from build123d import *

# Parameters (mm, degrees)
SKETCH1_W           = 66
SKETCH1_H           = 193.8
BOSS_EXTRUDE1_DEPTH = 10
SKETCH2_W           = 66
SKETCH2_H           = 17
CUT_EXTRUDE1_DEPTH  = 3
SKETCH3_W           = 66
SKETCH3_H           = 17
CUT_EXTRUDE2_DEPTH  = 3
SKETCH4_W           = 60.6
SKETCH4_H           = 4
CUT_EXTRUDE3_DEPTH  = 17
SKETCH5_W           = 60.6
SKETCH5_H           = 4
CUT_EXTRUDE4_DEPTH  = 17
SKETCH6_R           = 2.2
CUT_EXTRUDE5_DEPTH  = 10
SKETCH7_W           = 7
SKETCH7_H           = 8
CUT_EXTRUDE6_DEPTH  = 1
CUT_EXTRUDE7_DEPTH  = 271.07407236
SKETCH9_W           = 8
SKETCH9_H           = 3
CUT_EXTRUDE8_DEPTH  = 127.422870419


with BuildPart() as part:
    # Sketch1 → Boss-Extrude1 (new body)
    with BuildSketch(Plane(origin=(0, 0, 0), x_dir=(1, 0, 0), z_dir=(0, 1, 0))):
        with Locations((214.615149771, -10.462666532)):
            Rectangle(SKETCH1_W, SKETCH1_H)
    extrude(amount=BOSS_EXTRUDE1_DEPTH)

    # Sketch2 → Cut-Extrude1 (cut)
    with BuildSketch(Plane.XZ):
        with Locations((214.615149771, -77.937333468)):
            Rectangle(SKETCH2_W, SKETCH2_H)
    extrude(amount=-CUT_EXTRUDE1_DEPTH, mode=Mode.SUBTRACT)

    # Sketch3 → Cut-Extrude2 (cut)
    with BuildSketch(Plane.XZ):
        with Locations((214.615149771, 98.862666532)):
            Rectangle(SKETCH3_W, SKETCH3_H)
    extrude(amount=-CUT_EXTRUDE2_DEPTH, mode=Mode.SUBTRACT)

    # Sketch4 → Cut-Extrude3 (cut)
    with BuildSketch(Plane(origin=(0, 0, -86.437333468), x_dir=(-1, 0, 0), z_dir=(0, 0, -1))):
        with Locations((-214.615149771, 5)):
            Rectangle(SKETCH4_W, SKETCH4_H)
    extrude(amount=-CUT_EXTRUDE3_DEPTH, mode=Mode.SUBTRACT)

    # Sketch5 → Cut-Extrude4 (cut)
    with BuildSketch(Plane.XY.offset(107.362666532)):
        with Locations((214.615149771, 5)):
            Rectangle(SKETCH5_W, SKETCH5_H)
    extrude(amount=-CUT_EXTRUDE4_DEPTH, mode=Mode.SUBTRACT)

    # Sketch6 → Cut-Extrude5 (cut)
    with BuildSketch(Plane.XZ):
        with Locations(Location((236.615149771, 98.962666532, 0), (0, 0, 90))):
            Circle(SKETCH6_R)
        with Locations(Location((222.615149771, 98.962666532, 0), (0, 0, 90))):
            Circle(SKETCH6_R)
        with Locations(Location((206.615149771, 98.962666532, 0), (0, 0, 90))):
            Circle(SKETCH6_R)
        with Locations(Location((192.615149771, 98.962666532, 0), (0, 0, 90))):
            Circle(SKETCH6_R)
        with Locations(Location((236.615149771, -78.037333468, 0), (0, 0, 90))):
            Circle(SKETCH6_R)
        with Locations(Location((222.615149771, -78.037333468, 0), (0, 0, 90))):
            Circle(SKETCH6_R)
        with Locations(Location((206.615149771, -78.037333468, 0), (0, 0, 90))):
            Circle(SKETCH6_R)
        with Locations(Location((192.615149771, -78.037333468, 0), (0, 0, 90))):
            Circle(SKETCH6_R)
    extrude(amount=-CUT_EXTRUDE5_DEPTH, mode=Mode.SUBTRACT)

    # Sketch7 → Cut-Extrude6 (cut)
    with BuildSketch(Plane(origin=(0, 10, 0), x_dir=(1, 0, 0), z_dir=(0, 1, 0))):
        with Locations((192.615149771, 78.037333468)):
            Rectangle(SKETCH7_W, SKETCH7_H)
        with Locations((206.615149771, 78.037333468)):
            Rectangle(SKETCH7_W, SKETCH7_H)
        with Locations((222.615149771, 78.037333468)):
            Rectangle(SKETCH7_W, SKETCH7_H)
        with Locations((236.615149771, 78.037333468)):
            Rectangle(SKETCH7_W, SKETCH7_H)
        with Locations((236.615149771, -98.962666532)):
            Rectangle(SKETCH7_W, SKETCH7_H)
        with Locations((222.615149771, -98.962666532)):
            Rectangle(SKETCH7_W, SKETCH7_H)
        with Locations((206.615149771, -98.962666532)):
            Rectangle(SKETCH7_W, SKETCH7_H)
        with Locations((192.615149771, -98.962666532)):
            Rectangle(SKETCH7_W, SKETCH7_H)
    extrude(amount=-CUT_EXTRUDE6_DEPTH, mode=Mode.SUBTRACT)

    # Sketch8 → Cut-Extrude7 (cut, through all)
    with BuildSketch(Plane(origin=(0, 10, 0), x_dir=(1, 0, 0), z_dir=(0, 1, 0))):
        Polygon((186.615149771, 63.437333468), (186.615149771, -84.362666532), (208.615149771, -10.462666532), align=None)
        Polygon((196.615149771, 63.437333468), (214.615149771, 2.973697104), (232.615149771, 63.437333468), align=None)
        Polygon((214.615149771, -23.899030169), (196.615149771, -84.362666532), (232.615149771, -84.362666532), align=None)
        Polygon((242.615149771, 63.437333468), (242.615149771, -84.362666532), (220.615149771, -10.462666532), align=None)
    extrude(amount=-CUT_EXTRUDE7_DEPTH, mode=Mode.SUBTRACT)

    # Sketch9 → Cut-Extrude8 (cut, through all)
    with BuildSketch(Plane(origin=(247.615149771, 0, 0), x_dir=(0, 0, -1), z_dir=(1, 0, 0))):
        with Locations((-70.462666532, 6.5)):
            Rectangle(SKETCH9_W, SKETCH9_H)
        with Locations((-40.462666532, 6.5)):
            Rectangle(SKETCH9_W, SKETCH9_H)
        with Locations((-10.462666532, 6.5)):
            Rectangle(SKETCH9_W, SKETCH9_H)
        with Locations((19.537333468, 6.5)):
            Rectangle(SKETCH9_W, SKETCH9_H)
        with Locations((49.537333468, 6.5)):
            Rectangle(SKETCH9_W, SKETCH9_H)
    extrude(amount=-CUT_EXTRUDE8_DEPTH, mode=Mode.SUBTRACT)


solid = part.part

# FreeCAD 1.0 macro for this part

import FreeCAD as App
import Part
import Sketcher

V = App.Vector
Q = App.Units.Quantity

doc = App.newDocument("Part")
params = doc.addObject("Spreadsheet::Sheet", "Params")
for row, (alias, value) in enumerate([
    ("sketch1_width", "66 mm"),
    ("sketch1_height", "193.8 mm"),
    ("pad1_length", "10 mm"),
    ("sketch2_width", "66 mm"),
    ("sketch2_height", "17 mm"),
    ("pocket1_length", "3 mm"),
    ("sketch3_width", "66 mm"),
    ("sketch3_height", "17 mm"),
    ("pocket2_length", "3 mm"),
    ("sketch4_height", "4 mm"),
    ("sketch4_width", "60.6 mm"),
    ("pocket3_length", "17 mm"),
    ("sketch5_height", "4 mm"),
    ("sketch5_width", "60.6 mm"),
    ("pocket4_length", "17 mm"),
    ("sketch6_diameter", "4.4 mm"),
    ("pocket5_length", "10 mm"),
    ("sketch7_width", "7 mm"),
    ("sketch7_height", "8 mm"),
    ("pocket6_length", "1 mm"),
    ("sketch8_width", "36 mm"),
    ("sketch8_height", "147.8 mm"),
    ("sketch9_width", "3 mm"),
    ("sketch9_height", "8 mm"),
], start=1):
    params.set(f"A{row}", alias)
    params.set(f"B{row}", "=" + value)
    params.setAlias(f"B{row}", alias)

body = doc.addObject("PartDesign::Body", "Body")

# Sketch on XZ plane
sketch1 = body.newObject("Sketcher::SketchObject", "Sketch")
sketch1.AttachmentSupport = (doc.getObject("XZ_Plane"), [""])
sketch1.MapMode = "FlatFace"
sketch1.addGeometry(Part.LineSegment(V(182, -86, 0), V(182, 107, 0)), False)
sketch1.addGeometry(Part.LineSegment(V(182, 107, 0), V(248, 107, 0)), False)
sketch1.addGeometry(Part.LineSegment(V(248, 107, 0), V(248, -86, 0)), False)
sketch1.addGeometry(Part.LineSegment(V(248, -86, 0), V(182, -86, 0)), False)
sketch1.addConstraint(Sketcher.Constraint("Coincident", 0, 2, 1, 1))
sketch1.addConstraint(Sketcher.Constraint("Coincident", 1, 2, 2, 1))
sketch1.addConstraint(Sketcher.Constraint("Coincident", 2, 2, 3, 1))
sketch1.addConstraint(Sketcher.Constraint("Coincident", 3, 2, 0, 1))
sketch1.addConstraint(Sketcher.Constraint("Vertical", 0))
sketch1.addConstraint(Sketcher.Constraint("Horizontal", 1))
sketch1.addConstraint(Sketcher.Constraint("Vertical", 2))
sketch1.addConstraint(Sketcher.Constraint("Horizontal", 3))
sketch1.addConstraint(Sketcher.Constraint("DistanceX", 1, 1, 1, 2, Q("66 mm")))
sketch1.addConstraint(Sketcher.Constraint("DistanceY", 0, 1, 0, 2, Q("193.8 mm")))
sketch1.addConstraint(Sketcher.Constraint("DistanceX", -1, 1, 0, 2, Q("181.61515 mm")))
sketch1.addConstraint(Sketcher.Constraint("DistanceY", -1, 1, 0, 2, Q("107.362667 mm")))
sketch1.setExpression("Constraints[8]", "Params.sketch1_width")
sketch1.setExpression("Constraints[9]", "Params.sketch1_height")
pad1 = body.newObject("PartDesign::Pad", "Pad")
pad1.Profile = sketch1
pad1.setExpression("Length", "Params.pad1_length")
pad1.Reversed = True

# Sketch on XZ plane
sketch2 = body.newObject("Sketcher::SketchObject", "Sketch001")
sketch2.AttachmentSupport = (doc.getObject("XZ_Plane"), [""])
sketch2.MapMode = "FlatFace"
sketch2.addGeometry(Part.LineSegment(V(182, -69, 0), V(182, -86, 0)), False)
sketch2.addGeometry(Part.LineSegment(V(182, -86, 0), V(248, -86, 0)), False)
sketch2.addGeometry(Part.LineSegment(V(248, -86, 0), V(248, -69, 0)), False)
sketch2.addGeometry(Part.LineSegment(V(248, -69, 0), V(182, -69, 0)), False)
sketch2.addConstraint(Sketcher.Constraint("Coincident", 0, 2, 1, 1))
sketch2.addConstraint(Sketcher.Constraint("Coincident", 1, 2, 2, 1))
sketch2.addConstraint(Sketcher.Constraint("Coincident", 2, 2, 3, 1))
sketch2.addConstraint(Sketcher.Constraint("Coincident", 3, 2, 0, 1))
sketch2.addConstraint(Sketcher.Constraint("Vertical", 0))
sketch2.addConstraint(Sketcher.Constraint("Horizontal", 1))
sketch2.addConstraint(Sketcher.Constraint("Vertical", 2))
sketch2.addConstraint(Sketcher.Constraint("Horizontal", 3))
sketch2.addConstraint(Sketcher.Constraint("DistanceX", 1, 1, 1, 2, Q("66 mm")))
sketch2.addConstraint(Sketcher.Constraint("DistanceY", 0, 2, 0, 1, Q("17 mm")))
sketch2.addConstraint(Sketcher.Constraint("DistanceX", -1, 1, 0, 2, Q("181.61515 mm")))
sketch2.addConstraint(Sketcher.Constraint("DistanceY", 0, 2, -1, 1, Q("86.437333 mm")))
sketch2.setExpression("Constraints[8]", "Params.sketch2_width")
sketch2.setExpression("Constraints[9]", "Params.sketch2_height")
pocket1 = body.newObject("PartDesign::Pocket", "Pocket")
pocket1.Profile = sketch2
pocket1.setExpression("Length", "Params.pocket1_length")

# Sketch on XZ plane
sketch3 = body.newObject("Sketcher::SketchObject", "Sketch002")
sketch3.AttachmentSupport = (doc.getObject("XZ_Plane"), [""])
sketch3.MapMode = "FlatFace"
sketch3.addGeometry(Part.LineSegment(V(182, 107, 0), V(182, 90, 0)), False)
sketch3.addGeometry(Part.LineSegment(V(182, 90, 0), V(248, 90, 0)), False)
sketch3.addGeometry(Part.LineSegment(V(248, 90, 0), V(248, 107, 0)), False)
sketch3.addGeometry(Part.LineSegment(V(248, 107, 0), V(182, 107, 0)), False)
sketch3.addConstraint(Sketcher.Constraint("Coincident", 0, 2, 1, 1))
sketch3.addConstraint(Sketcher.Constraint("Coincident", 1, 2, 2, 1))
sketch3.addConstraint(Sketcher.Constraint("Coincident", 2, 2, 3, 1))
sketch3.addConstraint(Sketcher.Constraint("Coincident", 3, 2, 0, 1))
sketch3.addConstraint(Sketcher.Constraint("Vertical", 0))
sketch3.addConstraint(Sketcher.Constraint("Horizontal", 1))
sketch3.addConstraint(Sketcher.Constraint("Vertical", 2))
sketch3.addConstraint(Sketcher.Constraint("Horizontal", 3))
sketch3.addConstraint(Sketcher.Constraint("DistanceX", 1, 1, 1, 2, Q("66 mm")))
sketch3.addConstraint(Sketcher.Constraint("DistanceY", 0, 2, 0, 1, Q("17 mm")))
sketch3.addConstraint(Sketcher.Constraint("DistanceX", -1, 1, 0, 2, Q("181.61515 mm")))
sketch3.addConstraint(Sketcher.Constraint("DistanceY", -1, 1, 0, 2, Q("90.362667 mm")))
sketch3.setExpression("Constraints[8]", "Params.sketch3_width")
sketch3.setExpression("Constraints[9]", "Params.sketch3_height")
pocket2 = body.newObject("PartDesign::Pocket", "Pocket001")
pocket2.Profile = sketch3
pocket2.setExpression("Length", "Params.pocket2_length")

# Sketch on XY plane
sketch4 = body.newObject("Sketcher::SketchObject", "Sketch003")
sketch4.AttachmentSupport = (doc.getObject("XY_Plane"), [""])
sketch4.MapMode = "FlatFace"
sketch4.AttachmentOffset = App.Placement(V(0, 0, -86.437333), App.Rotation())
sketch4.addGeometry(Part.LineSegment(V(244.9, 7, 0), V(244.9, 3, 0)), False)
sketch4.addGeometry(Part.LineSegment(V(244.9, 3, 0), V(184.3, 3, 0)), False)
sketch4.addGeometry(Part.LineSegment(V(184.3, 3, 0), V(184.3, 7, 0)), False)
sketch4.addGeometry(Part.LineSegment(V(184.3, 7, 0), V(244.9, 7, 0)), False)
sketch4.addConstraint(Sketcher.Constraint("Coincident", 0, 2, 1, 1))
sketch4.addConstraint(Sketcher.Constraint("Coincident", 1, 2, 2, 1))
sketch4.addConstraint(Sketcher.Constraint("Coincident", 2, 2, 3, 1))
sketch4.addConstraint(Sketcher.Constraint("Coincident", 3, 2, 0, 1))
sketch4.addConstraint(Sketcher.Constraint("Vertical", 0))
sketch4.addConstraint(Sketcher.Constraint("Horizontal", 1))
sketch4.addConstraint(Sketcher.Constraint("Vertical", 2))
sketch4.addConstraint(Sketcher.Constraint("Horizontal", 3))
sketch4.addConstraint(Sketcher.Constraint("DistanceY", 0, 2, 0, 1, Q("4 mm")))
sketch4.addConstraint(Sketcher.Constraint("DistanceX", 1, 2, 1, 1, Q("60.6 mm")))
sketch4.addConstraint(Sketcher.Constraint("DistanceY", -1, 1, 0, 2, Q("3 mm")))
sketch4.addConstraint(Sketcher.Constraint("DistanceX", -1, 1, 0, 2, Q("244.91515 mm")))
sketch4.setExpression("Constraints[8]", "Params.sketch4_height")
sketch4.setExpression("Constraints[9]", "Params.sketch4_width")
pocket3 = body.newObject("PartDesign::Pocket", "Pocket002")
pocket3.Profile = sketch4
pocket3.setExpression("Length", "Params.pocket3_length")
pocket3.Reversed = True

# Sketch on XY plane
sketch5 = body.newObject("Sketcher::SketchObject", "Sketch004")
sketch5.AttachmentSupport = (doc.getObject("XY_Plane"), [""])
sketch5.MapMode = "FlatFace"
sketch5.AttachmentOffset = App.Placement(V(0, 0, 107.362667), App.Rotation())
sketch5.addGeometry(Part.LineSegment(V(184.3, 7, 0), V(184.3, 3, 0)), False)
sketch5.addGeometry(Part.LineSegment(V(184.3, 3, 0), V(244.9, 3, 0)), False)
sketch5.addGeometry(Part.LineSegment(V(244.9, 3, 0), V(244.9, 7, 0)), False)
sketch5.addGeometry(Part.LineSegment(V(244.9, 7, 0), V(184.3, 7, 0)), False)
sketch5.addConstraint(Sketcher.Constraint("Coincident", 0, 2, 1, 1))
sketch5.addConstraint(Sketcher.Constraint("Coincident", 1, 2, 2, 1))
sketch5.addConstraint(Sketcher.Constraint("Coincident", 2, 2, 3, 1))
sketch5.addConstraint(Sketcher.Constraint("Coincident", 3, 2, 0, 1))
sketch5.addConstraint(Sketcher.Constraint("Vertical", 0))
sketch5.addConstraint(Sketcher.Constraint("Horizontal", 1))
sketch5.addConstraint(Sketcher.Constraint("Vertical", 2))
sketch5.addConstraint(Sketcher.Constraint("Horizontal", 3))
sketch5.addConstraint(Sketcher.Constraint("DistanceY", 0, 2, 0, 1, Q("4 mm")))
sketch5.addConstraint(Sketcher.Constraint("DistanceX", 1, 1, 1, 2, Q("60.6 mm")))
sketch5.addConstraint(Sketcher.Constraint("DistanceY", -1, 1, 0, 2, Q("3 mm")))
sketch5.addConstraint(Sketcher.Constraint("DistanceX", -1, 1, 0, 2, Q("184.31515 mm")))
sketch5.setExpression("Constraints[8]", "Params.sketch5_height")
sketch5.setExpression("Constraints[9]", "Params.sketch5_width")
pocket4 = body.newObject("PartDesign::Pocket", "Pocket003")
pocket4.Profile = sketch5
pocket4.setExpression("Length", "Params.pocket4_length")

# Sketch on XZ plane
sketch6 = body.newObject("Sketcher::SketchObject", "Sketch005")
sketch6.AttachmentSupport = (doc.getObject("XZ_Plane"), [""])
sketch6.MapMode = "FlatFace"
sketch6.addGeometry(Part.Circle(V(236.6, 99, 0), V(0, 0, 1), 2.2), False)
sketch6.addGeometry(Part.Circle(V(222.6, 99, 0), V(0, 0, 1), 2.2), False)
sketch6.addGeometry(Part.Circle(V(206.6, 99, 0), V(0, 0, 1), 2.2), False)
sketch6.addGeometry(Part.Circle(V(192.6, 99, 0), V(0, 0, 1), 2.2), False)
sketch6.addGeometry(Part.Circle(V(236.6, -78, 0), V(0, 0, 1), 2.2), False)
sketch6.addGeometry(Part.Circle(V(222.6, -78, 0), V(0, 0, 1), 2.2), False)
sketch6.addGeometry(Part.Circle(V(206.6, -78, 0), V(0, 0, 1), 2.2), False)
sketch6.addGeometry(Part.Circle(V(192.6, -78, 0), V(0, 0, 1), 2.2), False)
sketch6.addConstraint(Sketcher.Constraint("Equal", 0, 1))
sketch6.addConstraint(Sketcher.Constraint("Equal", 1, 2))
sketch6.addConstraint(Sketcher.Constraint("Equal", 2, 3))
sketch6.addConstraint(Sketcher.Constraint("Equal", 3, 4))
sketch6.addConstraint(Sketcher.Constraint("Equal", 4, 5))
sketch6.addConstraint(Sketcher.Constraint("Equal", 5, 6))
sketch6.addConstraint(Sketcher.Constraint("Equal", 6, 7))
sketch6.addConstraint(Sketcher.Constraint("Horizontal", 0, 3, 1, 3))
sketch6.addConstraint(Sketcher.Constraint("Horizontal", 1, 3, 2, 3))
sketch6.addConstraint(Sketcher.Constraint("Horizontal", 2, 3, 3, 3))
sketch6.addConstraint(Sketcher.Constraint("Horizontal", 4, 3, 5, 3))
sketch6.addConstraint(Sketcher.Constraint("Horizontal", 5, 3, 6, 3))
sketch6.addConstraint(Sketcher.Constraint("Horizontal", 6, 3, 7, 3))
sketch6.addConstraint(Sketcher.Constraint("Vertical", 0, 3, 4, 3))
sketch6.addConstraint(Sketcher.Constraint("Vertical", 1, 3, 5, 3))
sketch6.addConstraint(Sketcher.Constraint("Vertical", 2, 3, 6, 3))
sketch6.addConstraint(Sketcher.Constraint("Vertical", 3, 3, 7, 3))
sketch6.addConstraint(Sketcher.Constraint("Diameter", 0, Q("4.4 mm")))
sketch6.addConstraint(Sketcher.Constraint("DistanceX", 1, 3, 0, 3, Q("14 mm")))
sketch6.addConstraint(Sketcher.Constraint("DistanceX", 2, 3, 1, 3, Q("16 mm")))
sketch6.addConstraint(Sketcher.Constraint("DistanceX", 3, 3, 2, 3, Q("14 mm")))
sketch6.addConstraint(Sketcher.Constraint("DistanceY", 4, 3, 0, 3, Q("177 mm")))
sketch6.addConstraint(Sketcher.Constraint("DistanceX", -1, 1, 0, 3, Q("236.61515 mm")))
sketch6.addConstraint(Sketcher.Constraint("DistanceY", -1, 1, 0, 3, Q("98.962667 mm")))
sketch6.setExpression("Constraints[17]", "Params.sketch6_diameter")
pocket5 = body.newObject("PartDesign::Pocket", "Pocket004")
pocket5.Profile = sketch6
pocket5.setExpression("Length", "Params.pocket5_length")

# Sketch on XZ plane
sketch7 = body.newObject("Sketcher::SketchObject", "Sketch006")
sketch7.AttachmentSupport = (doc.getObject("XZ_Plane"), [""])
sketch7.MapMode = "FlatFace"
sketch7.AttachmentOffset = App.Placement(V(0, 0, -10), App.Rotation())
sketch7.addGeometry(Part.LineSegment(V(189, -82, 0), V(189, -74, 0)), False)
sketch7.addGeometry(Part.LineSegment(V(189, -74, 0), V(196, -74, 0)), False)
sketch7.addGeometry(Part.LineSegment(V(196, -74, 0), V(196, -82, 0)), False)
sketch7.addGeometry(Part.LineSegment(V(196, -82, 0), V(189, -82, 0)), False)
sketch7.addGeometry(Part.LineSegment(V(203, -82, 0), V(203, -74, 0)), False)
sketch7.addGeometry(Part.LineSegment(V(203, -74, 0), V(210, -74, 0)), False)
sketch7.addGeometry(Part.LineSegment(V(210, -74, 0), V(210, -82, 0)), False)
sketch7.addGeometry(Part.LineSegment(V(210, -82, 0), V(203, -82, 0)), False)
sketch7.addGeometry(Part.LineSegment(V(219, -82, 0), V(219, -74, 0)), False)
sketch7.addGeometry(Part.LineSegment(V(219, -74, 0), V(226, -74, 0)), False)
sketch7.addGeometry(Part.LineSegment(V(226, -74, 0), V(226, -82, 0)), False)
sketch7.addGeometry(Part.LineSegment(V(226, -82, 0), V(219, -82, 0)), False)
sketch7.addGeometry(Part.LineSegment(V(233, -82, 0), V(233, -74, 0)), False)
sketch7.addGeometry(Part.LineSegment(V(233, -74, 0), V(240, -74, 0)), False)
sketch7.addGeometry(Part.LineSegment(V(240, -74, 0), V(240, -82, 0)), False)
sketch7.addGeometry(Part.LineSegment(V(240, -82, 0), V(233, -82, 0)), False)
sketch7.addGeometry(Part.LineSegment(V(233, 95, 0), V(233, 103, 0)), False)
sketch7.addGeometry(Part.LineSegment(V(233, 103, 0), V(240, 103, 0)), False)
sketch7.addGeometry(Part.LineSegment(V(240, 103, 0), V(240, 95, 0)), False)
sketch7.addGeometry(Part.LineSegment(V(240, 95, 0), V(233, 95, 0)), False)
sketch7.addGeometry(Part.LineSegment(V(219, 95, 0), V(219, 103, 0)), False)
sketch7.addGeometry(Part.LineSegment(V(219, 103, 0), V(226, 103, 0)), False)
sketch7.addGeometry(Part.LineSegment(V(226, 103, 0), V(226, 95, 0)), False)
sketch7.addGeometry(Part.LineSegment(V(226, 95, 0), V(219, 95, 0)), False)
sketch7.addGeometry(Part.LineSegment(V(203, 95, 0), V(203, 103, 0)), False)
sketch7.addGeometry(Part.LineSegment(V(203, 103, 0), V(210, 103, 0)), False)
sketch7.addGeometry(Part.LineSegment(V(210, 103, 0), V(210, 95, 0)), False)
sketch7.addGeometry(Part.LineSegment(V(210, 95, 0), V(203, 95, 0)), False)
sketch7.addGeometry(Part.LineSegment(V(189, 95, 0), V(189, 103, 0)), False)
sketch7.addGeometry(Part.LineSegment(V(189, 103, 0), V(196, 103, 0)), False)
sketch7.addGeometry(Part.LineSegment(V(196, 103, 0), V(196, 95, 0)), False)
sketch7.addGeometry(Part.LineSegment(V(196, 95, 0), V(189, 95, 0)), False)
sketch7.addConstraint(Sketcher.Constraint("Coincident", 0, 2, 1, 1))
sketch7.addConstraint(Sketcher.Constraint("Coincident", 1, 2, 2, 1))
sketch7.addConstraint(Sketcher.Constraint("Coincident", 2, 2, 3, 1))
sketch7.addConstraint(Sketcher.Constraint("Coincident", 3, 2, 0, 1))
sketch7.addConstraint(Sketcher.Constraint("Coincident", 4, 2, 5, 1))
sketch7.addConstraint(Sketcher.Constraint("Coincident", 5, 2, 6, 1))
sketch7.addConstraint(Sketcher.Constraint("Coincident", 6, 2, 7, 1))
sketch7.addConstraint(Sketcher.Constraint("Coincident", 7, 2, 4, 1))
sketch7.addConstraint(Sketcher.Constraint("Coincident", 8, 2, 9, 1))
sketch7.addConstraint(Sketcher.Constraint("Coincident", 9, 2, 10, 1))
sketch7.addConstraint(Sketcher.Constraint("Coincident", 10, 2, 11, 1))
sketch7.addConstraint(Sketcher.Constraint("Coincident", 11, 2, 8, 1))
sketch7.addConstraint(Sketcher.Constraint("Coincident", 12, 2, 13, 1))
sketch7.addConstraint(Sketcher.Constraint("Coincident", 13, 2, 14, 1))
sketch7.addConstraint(Sketcher.Constraint("Coincident", 14, 2, 15, 1))
sketch7.addConstraint(Sketcher.Constraint("Coincident", 15, 2, 12, 1))
sketch7.addConstraint(Sketcher.Constraint("Coincident", 16, 2, 17, 1))
sketch7.addConstraint(Sketcher.Constraint("Coincident", 17, 2, 18, 1))
sketch7.addConstraint(Sketcher.Constraint("Coincident", 18, 2, 19, 1))
sketch7.addConstraint(Sketcher.Constraint("Coincident", 19, 2, 16, 1))
sketch7.addConstraint(Sketcher.Constraint("Coincident", 20, 2, 21, 1))
sketch7.addConstraint(Sketcher.Constraint("Coincident", 21, 2, 22, 1))
sketch7.addConstraint(Sketcher.Constraint("Coincident", 22, 2, 23, 1))
sketch7.addConstraint(Sketcher.Constraint("Coincident", 23, 2, 20, 1))
sketch7.addConstraint(Sketcher.Constraint("Coincident", 24, 2, 25, 1))
sketch7.addConstraint(Sketcher.Constraint("Coincident", 25, 2, 26, 1))
sketch7.addConstraint(Sketcher.Constraint("Coincident", 26, 2, 27, 1))
sketch7.addConstraint(Sketcher.Constraint("Coincident", 27, 2, 24, 1))
sketch7.addConstraint(Sketcher.Constraint("Coincident", 28, 2, 29, 1))
sketch7.addConstraint(Sketcher.Constraint("Coincident", 29, 2, 30, 1))
sketch7.addConstraint(Sketcher.Constraint("Coincident", 30, 2, 31, 1))
sketch7.addConstraint(Sketcher.Constraint("Coincident", 31, 2, 28, 1))
sketch7.addConstraint(Sketcher.Constraint("Vertical", 0))
sketch7.addConstraint(Sketcher.Constraint("Horizontal", 1))
sketch7.addConstraint(Sketcher.Constraint("Vertical", 2))
sketch7.addConstraint(Sketcher.Constraint("Horizontal", 3))
sketch7.addConstraint(Sketcher.Constraint("Vertical", 4))
sketch7.addConstraint(Sketcher.Constraint("Horizontal", 5))
sketch7.addConstraint(Sketcher.Constraint("Vertical", 6))
sketch7.addConstraint(Sketcher.Constraint("Horizontal", 7))
sketch7.addConstraint(Sketcher.Constraint("Vertical", 8))
sketch7.addConstraint(Sketcher.Constraint("Horizontal", 9))
sketch7.addConstraint(Sketcher.Constraint("Vertical", 10))
sketch7.addConstraint(Sketcher.Constraint("Horizontal", 11))
sketch7.addConstraint(Sketcher.Constraint("Vertical", 12))
sketch7.addConstraint(Sketcher.Constraint("Horizontal", 13))
sketch7.addConstraint(Sketcher.Constraint("Vertical", 14))
sketch7.addConstraint(Sketcher.Constraint("Horizontal", 15))
sketch7.addConstraint(Sketcher.Constraint("Vertical", 16))
sketch7.addConstraint(Sketcher.Constraint("Horizontal", 17))
sketch7.addConstraint(Sketcher.Constraint("Vertical", 18))
sketch7.addConstraint(Sketcher.Constraint("Horizontal", 19))
sketch7.addConstraint(Sketcher.Constraint("Vertical", 20))
sketch7.addConstraint(Sketcher.Constraint("Horizontal", 21))
sketch7.addConstraint(Sketcher.Constraint("Vertical", 22))
sketch7.addConstraint(Sketcher.Constraint("Horizontal", 23))
sketch7.addConstraint(Sketcher.Constraint("Vertical", 24))
sketch7.addConstraint(Sketcher.Constraint("Horizontal", 25))
sketch7.addConstraint(Sketcher.Constraint("Vertical", 26))
sketch7.addConstraint(Sketcher.Constraint("Horizontal", 27))
sketch7.addConstraint(Sketcher.Constraint("Vertical", 28))
sketch7.addConstraint(Sketcher.Constraint("Horizontal", 29))
sketch7.addConstraint(Sketcher.Constraint("Vertical", 30))
sketch7.addConstraint(Sketcher.Constraint("Horizontal", 31))
sketch7.addConstraint(Sketcher.Constraint("Horizontal", 1, 2, 4, 2))
sketch7.addConstraint(Sketcher.Constraint("Horizontal", 3, 2, 6, 2))
sketch7.addConstraint(Sketcher.Constraint("Horizontal", 5, 2, 8, 2))
sketch7.addConstraint(Sketcher.Constraint("Horizontal", 7, 2, 10, 2))
sketch7.addConstraint(Sketcher.Constraint("Horizontal", 9, 2, 12, 2))
sketch7.addConstraint(Sketcher.Constraint("Horizontal", 11, 2, 14, 2))
sketch7.addConstraint(Sketcher.Constraint("Horizontal", 17, 2, 20, 2))
sketch7.addConstraint(Sketcher.Constraint("Horizontal", 19, 2, 22, 2))
sketch7.addConstraint(Sketcher.Constraint("Horizontal", 21, 2, 24, 2))
sketch7.addConstraint(Sketcher.Constraint("Horizontal", 23, 2, 26, 2))
sketch7.addConstraint(Sketcher.Constraint("Horizontal", 25, 2, 28, 2))
sketch7.addConstraint(Sketcher.Constraint("Horizontal", 27, 2, 30, 2))
sketch7.addConstraint(Sketcher.Constraint("Vertical", 15, 2, 16, 2))
sketch7.addConstraint(Sketcher.Constraint("Vertical", 14, 2, 17, 2))
sketch7.addConstraint(Sketcher.Constraint("Vertical", 11, 2, 20, 2))
sketch7.addConstraint(Sketcher.Constraint("Vertical", 10, 2, 21, 2))
sketch7.addConstraint(Sketcher.Constraint("Vertical", 7, 2, 24, 2))
sketch7.addConstraint(Sketcher.Constraint("Vertical", 6, 2, 25, 2))
sketch7.addConstraint(Sketcher.Constraint("Vertical", 3, 2, 28, 2))
sketch7.addConstraint(Sketcher.Constraint("Vertical", 2, 2, 29, 2))
sketch7.addConstraint(Sketcher.Constraint("Equal", 3, 5))
sketch7.addConstraint(Sketcher.Constraint("Equal", 7, 9))
sketch7.addConstraint(Sketcher.Constraint("Equal", 11, 13))
sketch7.addConstraint(Sketcher.Constraint("Equal", 14, 16))
sketch7.addConstraint(Sketcher.Constraint("DistanceX", 1, 1, 1, 2, Q("7 mm")))
sketch7.addConstraint(Sketcher.Constraint("DistanceY", 0, 1, 0, 2, Q("8 mm")))
sketch7.addConstraint(Sketcher.Constraint("DistanceX", 1, 2, 4, 2, Q("7 mm")))
sketch7.addConstraint(Sketcher.Constraint("DistanceX", 5, 2, 8, 2, Q("9 mm")))
sketch7.addConstraint(Sketcher.Constraint("DistanceX", 9, 2, 12, 2, Q("7 mm")))
sketch7.addConstraint(Sketcher.Constraint("DistanceY", 12, 2, 16, 2, Q("177 mm")))
sketch7.addConstraint(Sketcher.Constraint("DistanceX", -1, 1, 0, 2, Q("189.11515 mm")))
sketch7.addConstraint(Sketcher.Constraint("DistanceY", 0, 2, -1, 1, Q("74.037333 mm")))
sketch7.setExpression("Constraints[88]", "Params.sketch7_width")
sketch7.setExpression("Constraints[89]", "Params.sketch7_height")
pocket6 = body.newObject("PartDesign::Pocket", "Pocket005")
pocket6.Profile = sketch7
pocket6.setExpression("Length", "Params.pocket6_length")
pocket6.Reversed = True

# Sketch on XZ plane
sketch8 = body.newObject("Sketcher::SketchObject", "Sketch007")
sketch8.AttachmentSupport = (doc.getObject("XZ_Plane"), [""])
sketch8.MapMode = "FlatFace"
sketch8.AttachmentOffset = App.Placement(V(0, 0, -10), App.Rotation())
sketch8.addGeometry(Part.LineSegment(V(187, -63, 0), V(187, 84, 0)), False)
sketch8.addGeometry(Part.LineSegment(V(187, 84, 0), V(209, 10, 0)), False)
sketch8.addGeometry(Part.LineSegment(V(209, 10, 0), V(187, -63, 0)), False)
sketch8.addGeometry(Part.LineSegment(V(197, -63, 0), V(215, -3, 0)), False)
sketch8.addGeometry(Part.LineSegment(V(215, -3, 0), V(233, -63, 0)), False)
sketch8.addGeometry(Part.LineSegment(V(233, -63, 0), V(197, -63, 0)), False)
sketch8.addGeometry(Part.LineSegment(V(215, 24, 0), V(197, 84, 0)), False)
sketch8.addGeometry(Part.LineSegment(V(197, 84, 0), V(233, 84, 0)), False)
sketch8.addGeometry(Part.LineSegment(V(233, 84, 0), V(215, 24, 0)), False)
sketch8.addGeometry(Part.LineSegment(V(243, 84, 0), V(243, -63, 0)), False)
sketch8.addGeometry(Part.LineSegment(V(243, -63, 0), V(221, 10, 0)), False)
sketch8.addGeometry(Part.LineSegment(V(221, 10, 0), V(243, 84, 0)), False)
sketch8.addConstraint(Sketcher.Constraint("Coincident", 0, 2, 1, 1))
sketch8.addConstraint(Sketcher.Constraint("Coincident", 1, 2, 2, 1))
sketch8.addConstraint(Sketcher.Constraint("Coincident", 2, 2, 0, 1))
sketch8.addConstraint(Sketcher.Constraint("Coincident", 3, 2, 4, 1))
sketch8.addConstraint(Sketcher.Constraint("Coincident", 4, 2, 5, 1))
sketch8.addConstraint(Sketcher.Constraint("Coincident", 5, 2, 3, 1))
sketch8.addConstraint(Sketcher.Constraint("Coincident", 6, 2, 7, 1))
sketch8.addConstraint(Sketcher.Constraint("Coincident", 7, 2, 8, 1))
sketch8.addConstraint(Sketcher.Constraint("Coincident", 8, 2, 6, 1))
sketch8.addConstraint(Sketcher.Constraint("Coincident", 9, 2, 10, 1))
sketch8.addConstraint(Sketcher.Constraint("Coincident", 10, 2, 11, 1))
sketch8.addConstraint(Sketcher.Constraint("Coincident", 11, 2, 9, 1))
sketch8.addConstraint(Sketcher.Constraint("Vertical", 0))
sketch8.addConstraint(Sketcher.Constraint("Horizontal", 5))
sketch8.addConstraint(Sketcher.Constraint("Horizontal", 7))
sketch8.addConstraint(Sketcher.Constraint("Vertical", 9))
sketch8.addConstraint(Sketcher.Constraint("Parallel", 2, 3))
sketch8.addConstraint(Sketcher.Constraint("Parallel", 1, 4))
sketch8.addConstraint(Sketcher.Constraint("Parallel", 4, 6))
sketch8.addConstraint(Sketcher.Constraint("Parallel", 3, 8))
sketch8.addConstraint(Sketcher.Constraint("Parallel", 6, 10))
sketch8.addConstraint(Sketcher.Constraint("Parallel", 8, 11))
sketch8.addConstraint(Sketcher.Constraint("Horizontal", 2, 2, 4, 2))
sketch8.addConstraint(Sketcher.Constraint("Horizontal", 0, 2, 6, 2))
sketch8.addConstraint(Sketcher.Constraint("Horizontal", 5, 2, 9, 2))
sketch8.addConstraint(Sketcher.Constraint("Horizontal", 1, 2, 10, 2))
sketch8.addConstraint(Sketcher.Constraint("Horizontal", 7, 2, 11, 2))
sketch8.addConstraint(Sketcher.Constraint("Vertical", 5, 2, 6, 2))
sketch8.addConstraint(Sketcher.Constraint("Vertical", 4, 2, 7, 2))
sketch8.addConstraint(Sketcher.Constraint("DistanceX", 5, 2, 5, 1, Q("36 mm")))
sketch8.addConstraint(Sketcher.Constraint("DistanceY", 0, 1, 0, 2, Q("147.8 mm")))
sketch8.addConstraint(Sketcher.Constraint("DistanceX", 0, 2, 1, 2, Q("22 mm")))
sketch8.addConstraint(Sketcher.Constraint("DistanceX", 1, 2, 3, 2, Q("6 mm")))
sketch8.addConstraint(Sketcher.Constraint("DistanceX", 4, 2, 9, 2, Q("10 mm")))
sketch8.addConstraint(Sketcher.Constraint("DistanceX", -1, 1, 0, 2, Q("186.61515 mm")))
sketch8.addConstraint(Sketcher.Constraint("DistanceY", -1, 1, 8, 2, Q("23.89903 mm")))
sketch8.setExpression("Constraints[29]", "Params.sketch8_width")
sketch8.setExpression("Constraints[30]", "Params.sketch8_height")
pocket7 = body.newObject("PartDesign::Pocket", "Pocket006")
pocket7.Profile = sketch8
pocket7.Type = "ThroughAll"
pocket7.Reversed = True

# Sketch on YZ plane
sketch9 = body.newObject("Sketcher::SketchObject", "Sketch008")
sketch9.AttachmentSupport = (doc.getObject("YZ_Plane"), [""])
sketch9.MapMode = "FlatFace"
sketch9.AttachmentOffset = App.Placement(V(0, 0, 247.61515), App.Rotation())
sketch9.addGeometry(Part.LineSegment(V(8, 74.5, 0), V(5, 74.5, 0)), False)
sketch9.addGeometry(Part.LineSegment(V(5, 74.5, 0), V(5, 66.5, 0)), False)
sketch9.addGeometry(Part.LineSegment(V(5, 66.5, 0), V(8, 66.5, 0)), False)
sketch9.addGeometry(Part.LineSegment(V(8, 66.5, 0), V(8, 74.5, 0)), False)
sketch9.addGeometry(Part.LineSegment(V(8, 44.5, 0), V(5, 44.5, 0)), False)
sketch9.addGeometry(Part.LineSegment(V(5, 44.5, 0), V(5, 36.5, 0)), False)
sketch9.addGeometry(Part.LineSegment(V(5, 36.5, 0), V(8, 36.5, 0)), False)
sketch9.addGeometry(Part.LineSegment(V(8, 36.5, 0), V(8, 44.5, 0)), False)
sketch9.addGeometry(Part.LineSegment(V(8, 14.5, 0), V(5, 14.5, 0)), False)
sketch9.addGeometry(Part.LineSegment(V(5, 14.5, 0), V(5, 6.5, 0)), False)
sketch9.addGeometry(Part.LineSegment(V(5, 6.5, 0), V(8, 6.5, 0)), False)
sketch9.addGeometry(Part.LineSegment(V(8, 6.5, 0), V(8, 14.5, 0)), False)
sketch9.addGeometry(Part.LineSegment(V(8, -15.5, 0), V(5, -15.5, 0)), False)
sketch9.addGeometry(Part.LineSegment(V(5, -15.5, 0), V(5, -23.5, 0)), False)
sketch9.addGeometry(Part.LineSegment(V(5, -23.5, 0), V(8, -23.5, 0)), False)
sketch9.addGeometry(Part.LineSegment(V(8, -23.5, 0), V(8, -15.5, 0)), False)
sketch9.addGeometry(Part.LineSegment(V(8, -45.5, 0), V(5, -45.5, 0)), False)
sketch9.addGeometry(Part.LineSegment(V(5, -45.5, 0), V(5, -53.5, 0)), False)
sketch9.addGeometry(Part.LineSegment(V(5, -53.5, 0), V(8, -53.5, 0)), False)
sketch9.addGeometry(Part.LineSegment(V(8, -53.5, 0), V(8, -45.5, 0)), False)
sketch9.addConstraint(Sketcher.Constraint("Coincident", 0, 2, 1, 1))
sketch9.addConstraint(Sketcher.Constraint("Coincident", 1, 2, 2, 1))
sketch9.addConstraint(Sketcher.Constraint("Coincident", 2, 2, 3, 1))
sketch9.addConstraint(Sketcher.Constraint("Coincident", 3, 2, 0, 1))
sketch9.addConstraint(Sketcher.Constraint("Coincident", 4, 2, 5, 1))
sketch9.addConstraint(Sketcher.Constraint("Coincident", 5, 2, 6, 1))
sketch9.addConstraint(Sketcher.Constraint("Coincident", 6, 2, 7, 1))
sketch9.addConstraint(Sketcher.Constraint("Coincident", 7, 2, 4, 1))
sketch9.addConstraint(Sketcher.Constraint("Coincident", 8, 2, 9, 1))
sketch9.addConstraint(Sketcher.Constraint("Coincident", 9, 2, 10, 1))
sketch9.addConstraint(Sketcher.Constraint("Coincident", 10, 2, 11, 1))
sketch9.addConstraint(Sketcher.Constraint("Coincident", 11, 2, 8, 1))
sketch9.addConstraint(Sketcher.Constraint("Coincident", 12, 2, 13, 1))
sketch9.addConstraint(Sketcher.Constraint("Coincident", 13, 2, 14, 1))
sketch9.addConstraint(Sketcher.Constraint("Coincident", 14, 2, 15, 1))
sketch9.addConstraint(Sketcher.Constraint("Coincident", 15, 2, 12, 1))
sketch9.addConstraint(Sketcher.Constraint("Coincident", 16, 2, 17, 1))
sketch9.addConstraint(Sketcher.Constraint("Coincident", 17, 2, 18, 1))
sketch9.addConstraint(Sketcher.Constraint("Coincident", 18, 2, 19, 1))
sketch9.addConstraint(Sketcher.Constraint("Coincident", 19, 2, 16, 1))
sketch9.addConstraint(Sketcher.Constraint("Horizontal", 0))
sketch9.addConstraint(Sketcher.Constraint("Vertical", 1))
sketch9.addConstraint(Sketcher.Constraint("Horizontal", 2))
sketch9.addConstraint(Sketcher.Constraint("Vertical", 3))
sketch9.addConstraint(Sketcher.Constraint("Horizontal", 4))
sketch9.addConstraint(Sketcher.Constraint("Vertical", 5))
sketch9.addConstraint(Sketcher.Constraint("Horizontal", 6))
sketch9.addConstraint(Sketcher.Constraint("Vertical", 7))
sketch9.addConstraint(Sketcher.Constraint("Horizontal", 8))
sketch9.addConstraint(Sketcher.Constraint("Vertical", 9))
sketch9.addConstraint(Sketcher.Constraint("Horizontal", 10))
sketch9.addConstraint(Sketcher.Constraint("Vertical", 11))
sketch9.addConstraint(Sketcher.Constraint("Horizontal", 12))
sketch9.addConstraint(Sketcher.Constraint("Vertical", 13))
sketch9.addConstraint(Sketcher.Constraint("Horizontal", 14))
sketch9.addConstraint(Sketcher.Constraint("Vertical", 15))
sketch9.addConstraint(Sketcher.Constraint("Horizontal", 16))
sketch9.addConstraint(Sketcher.Constraint("Vertical", 17))
sketch9.addConstraint(Sketcher.Constraint("Horizontal", 18))
sketch9.addConstraint(Sketcher.Constraint("Vertical", 19))
sketch9.addConstraint(Sketcher.Constraint("Vertical", 1, 2, 4, 2))
sketch9.addConstraint(Sketcher.Constraint("Vertical", 3, 2, 6, 2))
sketch9.addConstraint(Sketcher.Constraint("Vertical", 5, 2, 8, 2))
sketch9.addConstraint(Sketcher.Constraint("Vertical", 7, 2, 10, 2))
sketch9.addConstraint(Sketcher.Constraint("Vertical", 9, 2, 12, 2))
sketch9.addConstraint(Sketcher.Constraint("Vertical", 11, 2, 14, 2))
sketch9.addConstraint(Sketcher.Constraint("Vertical", 13, 2, 16, 2))
sketch9.addConstraint(Sketcher.Constraint("Vertical", 15, 2, 18, 2))
sketch9.addConstraint(Sketcher.Constraint("Equal", 3, 5))
sketch9.addConstraint(Sketcher.Constraint("Equal", 7, 9))
sketch9.addConstraint(Sketcher.Constraint("Equal", 11, 13))
sketch9.addConstraint(Sketcher.Constraint("Equal", 15, 17))
sketch9.addConstraint(Sketcher.Constraint("DistanceX", 0, 2, 0, 1, Q("3 mm")))
sketch9.addConstraint(Sketcher.Constraint("DistanceY", 1, 2, 1, 1, Q("8 mm")))
sketch9.addConstraint(Sketcher.Constraint("DistanceX", -1, 1, 0, 2, Q("5 mm")))
sketch9.addConstraint(Sketcher.Constraint("DistanceY", 4, 2, 1, 2, Q("22 mm")))
sketch9.addConstraint(Sketcher.Constraint("DistanceY", 8, 2, 5, 2, Q("22 mm")))
sketch9.addConstraint(Sketcher.Constraint("DistanceY", 12, 2, 9, 2, Q("22 mm")))
sketch9.addConstraint(Sketcher.Constraint("DistanceY", 16, 2, 13, 2, Q("22 mm")))
sketch9.addConstraint(Sketcher.Constraint("DistanceY", -1, 1, 0, 2, Q("74.462667 mm")))
sketch9.setExpression("Constraints[52]", "Params.sketch9_width")
sketch9.setExpression("Constraints[53]", "Params.sketch9_height")
pocket8 = body.newObject("PartDesign::Pocket", "Pocket007")
pocket8.Profile = sketch9
pocket8.Type = "ThroughAll"

doc.recompute()
